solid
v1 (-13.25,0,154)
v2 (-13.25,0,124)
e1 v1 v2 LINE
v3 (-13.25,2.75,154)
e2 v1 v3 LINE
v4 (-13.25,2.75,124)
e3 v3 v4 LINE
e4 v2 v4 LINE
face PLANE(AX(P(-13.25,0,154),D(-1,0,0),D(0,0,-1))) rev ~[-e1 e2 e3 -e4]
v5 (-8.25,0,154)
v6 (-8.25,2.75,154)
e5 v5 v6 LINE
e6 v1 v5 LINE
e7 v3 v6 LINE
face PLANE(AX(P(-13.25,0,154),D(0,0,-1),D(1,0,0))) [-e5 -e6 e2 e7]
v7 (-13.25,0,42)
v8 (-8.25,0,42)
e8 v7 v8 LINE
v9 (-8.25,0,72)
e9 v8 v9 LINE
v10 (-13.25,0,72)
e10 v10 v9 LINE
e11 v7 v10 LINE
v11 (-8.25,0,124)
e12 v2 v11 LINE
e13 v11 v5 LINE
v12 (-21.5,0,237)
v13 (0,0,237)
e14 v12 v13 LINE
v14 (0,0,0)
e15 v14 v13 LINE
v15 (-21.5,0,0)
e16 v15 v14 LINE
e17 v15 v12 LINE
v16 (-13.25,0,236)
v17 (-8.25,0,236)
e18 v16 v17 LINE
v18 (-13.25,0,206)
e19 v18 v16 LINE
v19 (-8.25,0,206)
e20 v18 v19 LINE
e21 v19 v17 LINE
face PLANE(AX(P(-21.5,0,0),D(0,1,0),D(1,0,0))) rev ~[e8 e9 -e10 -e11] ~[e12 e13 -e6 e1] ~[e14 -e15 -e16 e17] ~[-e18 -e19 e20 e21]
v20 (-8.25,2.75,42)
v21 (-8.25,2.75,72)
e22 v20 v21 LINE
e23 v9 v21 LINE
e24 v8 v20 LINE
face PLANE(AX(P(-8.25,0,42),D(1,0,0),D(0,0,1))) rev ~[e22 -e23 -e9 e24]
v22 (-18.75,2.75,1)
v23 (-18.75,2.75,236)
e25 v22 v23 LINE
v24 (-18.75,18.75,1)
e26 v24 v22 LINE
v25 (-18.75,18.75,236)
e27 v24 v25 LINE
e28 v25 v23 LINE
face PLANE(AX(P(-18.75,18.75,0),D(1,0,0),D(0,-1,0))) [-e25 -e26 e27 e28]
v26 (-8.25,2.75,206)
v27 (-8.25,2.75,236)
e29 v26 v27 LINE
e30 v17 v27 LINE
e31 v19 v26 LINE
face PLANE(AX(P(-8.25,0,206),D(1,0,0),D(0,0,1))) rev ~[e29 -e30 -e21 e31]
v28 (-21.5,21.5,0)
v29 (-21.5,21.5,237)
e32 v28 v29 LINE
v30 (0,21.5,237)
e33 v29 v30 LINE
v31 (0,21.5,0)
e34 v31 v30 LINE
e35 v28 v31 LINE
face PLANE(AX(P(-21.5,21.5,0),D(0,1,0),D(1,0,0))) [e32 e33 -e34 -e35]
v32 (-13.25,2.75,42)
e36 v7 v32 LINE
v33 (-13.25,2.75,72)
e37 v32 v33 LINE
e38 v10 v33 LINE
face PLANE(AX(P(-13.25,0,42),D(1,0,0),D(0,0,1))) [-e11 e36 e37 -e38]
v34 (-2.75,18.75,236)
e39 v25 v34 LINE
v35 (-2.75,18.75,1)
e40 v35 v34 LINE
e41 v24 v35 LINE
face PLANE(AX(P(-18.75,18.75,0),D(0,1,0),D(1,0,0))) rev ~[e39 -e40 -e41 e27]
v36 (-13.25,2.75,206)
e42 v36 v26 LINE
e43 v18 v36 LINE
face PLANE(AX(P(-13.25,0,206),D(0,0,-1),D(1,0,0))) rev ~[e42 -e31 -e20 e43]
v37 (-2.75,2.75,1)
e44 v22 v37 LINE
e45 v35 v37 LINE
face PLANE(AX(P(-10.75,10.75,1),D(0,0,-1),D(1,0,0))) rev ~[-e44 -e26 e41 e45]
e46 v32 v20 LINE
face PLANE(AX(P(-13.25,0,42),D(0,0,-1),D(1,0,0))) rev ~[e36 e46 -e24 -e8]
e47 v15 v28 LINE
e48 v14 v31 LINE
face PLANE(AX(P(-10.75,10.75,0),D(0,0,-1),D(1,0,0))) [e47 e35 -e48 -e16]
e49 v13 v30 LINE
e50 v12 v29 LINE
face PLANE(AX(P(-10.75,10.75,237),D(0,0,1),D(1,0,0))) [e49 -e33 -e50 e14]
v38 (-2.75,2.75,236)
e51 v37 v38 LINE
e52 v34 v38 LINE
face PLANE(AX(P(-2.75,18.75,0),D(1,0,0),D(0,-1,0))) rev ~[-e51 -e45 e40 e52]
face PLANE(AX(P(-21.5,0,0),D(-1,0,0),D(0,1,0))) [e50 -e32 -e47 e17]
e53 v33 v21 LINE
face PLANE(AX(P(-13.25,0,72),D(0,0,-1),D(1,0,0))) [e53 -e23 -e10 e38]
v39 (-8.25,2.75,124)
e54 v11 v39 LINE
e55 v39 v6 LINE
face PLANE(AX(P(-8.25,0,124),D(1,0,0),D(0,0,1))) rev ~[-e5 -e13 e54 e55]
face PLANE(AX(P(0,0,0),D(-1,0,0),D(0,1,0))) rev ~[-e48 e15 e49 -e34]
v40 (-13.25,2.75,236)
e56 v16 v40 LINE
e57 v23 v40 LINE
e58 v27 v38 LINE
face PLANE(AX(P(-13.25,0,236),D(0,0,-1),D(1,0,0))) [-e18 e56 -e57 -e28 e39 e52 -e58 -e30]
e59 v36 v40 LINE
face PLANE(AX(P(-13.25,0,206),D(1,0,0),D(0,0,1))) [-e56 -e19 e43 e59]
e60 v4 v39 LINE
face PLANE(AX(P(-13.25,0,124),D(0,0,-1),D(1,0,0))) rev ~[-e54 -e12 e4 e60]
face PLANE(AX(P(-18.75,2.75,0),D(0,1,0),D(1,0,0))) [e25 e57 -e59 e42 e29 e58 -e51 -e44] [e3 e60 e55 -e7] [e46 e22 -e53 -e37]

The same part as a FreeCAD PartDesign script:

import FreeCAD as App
import Part
import Sketcher

V = App.Vector


def add_polygon(sketch, points):
    """Adds a closed chain of lines whose ends are joined by coincident constraints."""
    first, n = sketch.GeometryCount, len(points)
    for a, b in zip(points, points[1:] + points[:1]):
        sketch.addGeometry(Part.LineSegment(App.Vector(*a, 0), App.Vector(*b, 0)), False)
    for i in range(n):
        sketch.addConstraint(Sketcher.Constraint("Coincident", first + i, 2, first + (i + 1) % n, 1))

doc = App.newDocument("Part")
params = doc.addObject("Spreadsheet::Sheet", "Params")
for row, (alias, value) in enumerate([
    ("sketch1_width", "21.5 mm"),
    ("pad1_length", "237 mm"),
    ("sketch2_width", "5 mm"),
    ("sketch2_height", "30 mm"),
    ("pocket1_length", "2.75 mm"),
    ("sketch3_width", "16 mm"),
    ("pocket2_length", "236 mm"),
    ("sketch4_width", "16 mm"),
    ("pad2_length", "1 mm"),
], start=1):
    params.set(f"A{row}", alias)
    params.set(f"B{row}", "=" + value)
    params.setAlias(f"B{row}", alias)

body = doc.addObject("PartDesign::Body", "Body")

sketch1 = body.newObject("Sketcher::SketchObject", "Sketch")
sketch1.AttachmentSupport = (doc.getObject("XY_Plane"), [""])
sketch1.MapMode = "FlatFace"
add_polygon(sketch1, [(-22, 22), (-22, 0), (0, 0), (0, 22)])
sketch1.addConstraint(Sketcher.Constraint("Vertical", 0))
sketch1.addConstraint(Sketcher.Constraint("Horizontal", 1))
sketch1.addConstraint(Sketcher.Constraint("Vertical", 2))
sketch1.addConstraint(Sketcher.Constraint("Horizontal", 3))
sketch1.addConstraint(Sketcher.Constraint("Coincident", 1, 2, -1, 1))
sketch1.addConstraint(Sketcher.Constraint("Equal", 3, 0))
sketch1.addConstraint(Sketcher.Constraint("DistanceX", 1, 1, 1, 2, 21.5))
sketch1.setExpression("Constraints[10]", "Params.sketch1_width")
pad1 = body.newObject("PartDesign::Pad", "Pad")
pad1.Profile = sketch1
pad1.setExpression("Length", "Params.pad1_length")

sketch2 = body.newObject("Sketcher::SketchObject", "Sketch001")
sketch2.AttachmentSupport = (doc.getObject("XZ_Plane"), [""])
sketch2.MapMode = "FlatFace"
add_polygon(sketch2, [(-13, 236), (-13, 206), (-8, 206), (-8, 236)])
add_polygon(sketch2, [(-13, 154), (-13, 124), (-8, 124), (-8, 154)])
add_polygon(sketch2, [(-13, 72), (-13, 42), (-8, 42), (-8, 72)])
sketch2.addConstraint(Sketcher.Constraint("Vertical", 0))
sketch2.addConstraint(Sketcher.Constraint("Horizontal", 1))
sketch2.addConstraint(Sketcher.Constraint("Vertical", 2))
sketch2.addConstraint(Sketcher.Constraint("Horizontal", 3))
sketch2.addConstraint(Sketcher.Constraint("Vertical", 4))
sketch2.addConstraint(Sketcher.Constraint("Horizontal", 5))
sketch2.addConstraint(Sketcher.Constraint("Vertical", 6))
sketch2.addConstraint(Sketcher.Constraint("Horizontal", 7))
sketch2.addConstraint(Sketcher.Constraint("Vertical", 8))
sketch2.addConstraint(Sketcher.Constraint("Horizontal", 9))
sketch2.addConstraint(Sketcher.Constraint("Vertical", 10))
sketch2.addConstraint(Sketcher.Constraint("Horizontal", 11))
sketch2.addConstraint(Sketcher.Constraint("Vertical", 3, 2, 4, 2))
sketch2.addConstraint(Sketcher.Constraint("Vertical", 2, 2, 5, 2))
sketch2.addConstraint(Sketcher.Constraint("Vertical", 7, 2, 8, 2))
sketch2.addConstraint(Sketcher.Constraint("Vertical", 6, 2, 9, 2))
sketch2.addConstraint(Sketcher.Constraint("Equal", 2, 4))
sketch2.addConstraint(Sketcher.Constraint("Equal", 6, 8))
sketch2.addConstraint(Sketcher.Constraint("DistanceX", 1, 1, 1, 2, 5.0))
sketch2.addConstraint(Sketcher.Constraint("DistanceY", 0, 2, 0, 1, 30.0))
sketch2.addConstraint(Sketcher.Constraint("DistanceY", -1, 1, 0, 2, 206.0))
sketch2.addConstraint(Sketcher.Constraint("DistanceY", -1, 1, 4, 2, 124.0))
sketch2.addConstraint(Sketcher.Constraint("DistanceY", -1, 1, 8, 2, 42.0))
sketch2.addConstraint(Sketcher.Constraint("DistanceX", 0, 2, -1, 1, 13.25))
sketch2.setExpression("Constraints[30]", "Params.sketch2_width")
sketch2.setExpression("Constraints[31]", "Params.sketch2_height")
pocket1 = body.newObject("PartDesign::Pocket", "Pocket")
pocket1.Profile = sketch2
pocket1.setExpression("Length", "Params.pocket1_length")

sketch3 = body.newObject("Sketcher::SketchObject", "Sketch002")
sketch3.AttachmentSupport = (doc.getObject("XY_Plane"), [""])
sketch3.MapMode = "FlatFace"
add_polygon(sketch3, [(-19, 3), (-19, 19), (-3, 19), (-3, 3)])
sketch3.addConstraint(Sketcher.Constraint("Vertical", 0))
sketch3.addConstraint(Sketcher.Constraint("Horizontal", 1))
sketch3.addConstraint(Sketcher.Constraint("Vertical", 2))
sketch3.addConstraint(Sketcher.Constraint("Horizontal", 3))
sketch3.addConstraint(Sketcher.Constraint("Equal", 3, 0))
sketch3.addConstraint(Sketcher.Constraint("DistanceX", 1, 1, 1, 2, 16.0))
sketch3.addConstraint(Sketcher.Constraint("DistanceX", 0, 2, -1, 1, 18.75))
sketch3.addConstraint(Sketcher.Constraint("DistanceY", -1, 1, 0, 2, 18.75))
sketch3.setExpression("Constraints[9]", "Params.sketch3_width")
pocket2 = body.newObject("PartDesign::Pocket", "Pocket001")
pocket2.Profile = sketch3
pocket2.setExpression("Length", "Params.pocket2_length")
pocket2.Reversed = True

sketch4 = body.newObject("Sketcher::SketchObject", "Sketch003")
sketch4.AttachmentSupport = (doc.getObject("XY_Plane"), [""])
sketch4.MapMode = "FlatFace"
add_polygon(sketch4, [(-19, 3), (-19, 19), (-3, 19), (-3, 3)])
sketch4.addConstraint(Sketcher.Constraint("Vertical", 0))
sketch4.addConstraint(Sketcher.Constraint("Horizontal", 1))
sketch4.addConstraint(Sketcher.Constraint("Vertical", 2))
sketch4.addConstraint(Sketcher.Constraint("Horizontal", 3))
sketch4.addConstraint(Sketcher.Constraint("Equal", 3, 0))
sketch4.addConstraint(Sketcher.Constraint("DistanceX", 1, 1, 1, 2, 16.0))
sketch4.addConstraint(Sketcher.Constraint("DistanceX", 0, 2, -1, 1, 18.75))
sketch4.addConstraint(Sketcher.Constraint("DistanceY", -1, 1, 0, 2, 18.75))
sketch4.setExpression("Constraints[9]", "Params.sketch4_width")
pad2 = body.newObject("PartDesign::Pad", "Pad001")
pad2.Profile = sketch4
pad2.setExpression("Length", "Params.pad2_length")

doc.recompute()
